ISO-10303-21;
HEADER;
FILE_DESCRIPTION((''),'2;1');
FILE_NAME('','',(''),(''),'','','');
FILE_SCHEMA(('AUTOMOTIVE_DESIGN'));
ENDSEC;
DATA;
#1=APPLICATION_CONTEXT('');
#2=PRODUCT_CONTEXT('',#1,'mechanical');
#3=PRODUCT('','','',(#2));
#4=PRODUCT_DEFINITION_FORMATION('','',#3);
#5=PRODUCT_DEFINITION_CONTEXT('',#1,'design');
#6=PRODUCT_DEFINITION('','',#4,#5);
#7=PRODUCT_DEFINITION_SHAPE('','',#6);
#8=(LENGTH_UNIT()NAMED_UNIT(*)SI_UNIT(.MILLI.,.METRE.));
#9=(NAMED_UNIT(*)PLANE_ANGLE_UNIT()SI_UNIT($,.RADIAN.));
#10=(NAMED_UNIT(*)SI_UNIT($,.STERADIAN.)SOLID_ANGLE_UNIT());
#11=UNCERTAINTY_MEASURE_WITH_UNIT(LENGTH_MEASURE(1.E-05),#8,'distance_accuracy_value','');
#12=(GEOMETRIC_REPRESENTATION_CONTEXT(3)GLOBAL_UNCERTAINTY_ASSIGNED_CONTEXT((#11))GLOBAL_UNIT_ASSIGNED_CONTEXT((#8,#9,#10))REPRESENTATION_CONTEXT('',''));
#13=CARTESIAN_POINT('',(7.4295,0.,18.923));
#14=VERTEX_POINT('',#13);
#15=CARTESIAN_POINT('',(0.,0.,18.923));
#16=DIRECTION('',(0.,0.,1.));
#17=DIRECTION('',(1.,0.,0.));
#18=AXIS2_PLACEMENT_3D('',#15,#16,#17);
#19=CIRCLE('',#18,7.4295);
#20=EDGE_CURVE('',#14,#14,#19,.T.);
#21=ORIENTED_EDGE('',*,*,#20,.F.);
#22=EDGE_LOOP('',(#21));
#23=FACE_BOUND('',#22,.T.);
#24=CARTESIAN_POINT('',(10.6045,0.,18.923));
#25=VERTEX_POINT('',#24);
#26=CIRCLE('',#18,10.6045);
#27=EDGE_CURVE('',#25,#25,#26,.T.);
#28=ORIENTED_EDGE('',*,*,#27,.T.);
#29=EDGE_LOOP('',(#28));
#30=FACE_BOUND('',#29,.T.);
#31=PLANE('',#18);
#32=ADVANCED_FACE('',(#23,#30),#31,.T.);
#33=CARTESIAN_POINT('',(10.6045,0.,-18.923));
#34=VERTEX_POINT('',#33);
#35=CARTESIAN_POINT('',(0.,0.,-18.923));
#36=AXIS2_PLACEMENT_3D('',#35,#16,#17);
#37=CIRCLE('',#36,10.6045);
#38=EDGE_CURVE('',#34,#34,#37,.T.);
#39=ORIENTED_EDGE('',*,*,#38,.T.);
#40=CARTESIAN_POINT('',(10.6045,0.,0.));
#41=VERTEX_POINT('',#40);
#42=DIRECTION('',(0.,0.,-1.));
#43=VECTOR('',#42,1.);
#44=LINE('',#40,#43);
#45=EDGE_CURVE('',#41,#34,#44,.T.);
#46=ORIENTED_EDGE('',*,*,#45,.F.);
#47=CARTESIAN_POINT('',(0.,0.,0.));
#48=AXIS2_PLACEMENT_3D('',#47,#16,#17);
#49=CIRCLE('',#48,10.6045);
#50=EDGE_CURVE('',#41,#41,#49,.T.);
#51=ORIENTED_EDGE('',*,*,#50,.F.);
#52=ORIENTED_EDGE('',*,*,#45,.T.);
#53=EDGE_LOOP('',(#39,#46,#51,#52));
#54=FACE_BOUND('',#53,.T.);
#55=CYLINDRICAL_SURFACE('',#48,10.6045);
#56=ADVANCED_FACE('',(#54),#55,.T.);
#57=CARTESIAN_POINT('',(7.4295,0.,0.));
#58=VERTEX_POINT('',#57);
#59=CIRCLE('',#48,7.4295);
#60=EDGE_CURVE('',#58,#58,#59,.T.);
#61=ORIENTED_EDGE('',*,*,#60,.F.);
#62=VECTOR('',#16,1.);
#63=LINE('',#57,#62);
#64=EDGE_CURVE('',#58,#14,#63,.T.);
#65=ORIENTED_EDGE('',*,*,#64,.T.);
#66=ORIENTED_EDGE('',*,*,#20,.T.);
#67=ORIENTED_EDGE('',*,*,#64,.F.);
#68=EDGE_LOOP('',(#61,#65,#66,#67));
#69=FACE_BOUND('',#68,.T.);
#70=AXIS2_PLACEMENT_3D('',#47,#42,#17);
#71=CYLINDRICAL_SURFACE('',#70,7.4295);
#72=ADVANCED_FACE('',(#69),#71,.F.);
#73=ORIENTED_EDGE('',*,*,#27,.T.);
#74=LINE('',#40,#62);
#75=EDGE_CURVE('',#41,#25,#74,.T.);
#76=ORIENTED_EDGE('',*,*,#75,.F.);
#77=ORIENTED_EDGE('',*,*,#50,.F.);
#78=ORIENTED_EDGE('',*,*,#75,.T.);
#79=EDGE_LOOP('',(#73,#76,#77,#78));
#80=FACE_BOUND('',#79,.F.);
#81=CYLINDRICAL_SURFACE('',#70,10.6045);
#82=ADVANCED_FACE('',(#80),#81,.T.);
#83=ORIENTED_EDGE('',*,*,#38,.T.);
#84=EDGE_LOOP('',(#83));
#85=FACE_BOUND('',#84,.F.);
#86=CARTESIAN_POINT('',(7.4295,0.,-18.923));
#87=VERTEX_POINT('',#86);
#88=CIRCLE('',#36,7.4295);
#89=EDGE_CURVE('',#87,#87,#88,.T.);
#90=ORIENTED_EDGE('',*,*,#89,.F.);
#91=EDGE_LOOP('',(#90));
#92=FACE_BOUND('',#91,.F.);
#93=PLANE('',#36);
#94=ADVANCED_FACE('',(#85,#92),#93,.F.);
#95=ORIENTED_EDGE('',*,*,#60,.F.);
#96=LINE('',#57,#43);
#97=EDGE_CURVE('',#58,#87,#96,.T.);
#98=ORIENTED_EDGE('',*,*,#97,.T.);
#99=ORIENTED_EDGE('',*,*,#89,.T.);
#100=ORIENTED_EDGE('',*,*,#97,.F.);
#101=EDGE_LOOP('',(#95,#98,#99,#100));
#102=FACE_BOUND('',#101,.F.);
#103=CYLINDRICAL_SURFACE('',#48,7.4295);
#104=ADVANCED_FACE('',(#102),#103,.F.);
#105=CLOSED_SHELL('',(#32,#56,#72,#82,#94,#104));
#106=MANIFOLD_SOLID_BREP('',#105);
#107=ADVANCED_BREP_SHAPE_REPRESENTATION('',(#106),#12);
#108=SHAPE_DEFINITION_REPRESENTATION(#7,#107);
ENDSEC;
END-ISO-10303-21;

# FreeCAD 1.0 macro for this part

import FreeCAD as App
import Part
import Sketcher

V = App.Vector
Q = App.Units.Quantity

doc = App.newDocument("Part")
params = doc.addObject("Spreadsheet::Sheet", "Params")
for row, (alias, value) in enumerate([
    ("sketch1_diameter", "0.585 in"),
    ("sketch1_diameter2", "0.835 in"),
    ("pad1_length", "1.49 in"),
], start=1):
    params.set(f"A{row}", alias)
    params.set(f"B{row}", "=" + value)
    params.setAlias(f"B{row}", alias)

body = doc.addObject("PartDesign::Body", "Body")

sketch1 = body.newObject("Sketcher::SketchObject", "Sketch")
sketch1.AttachmentSupport = (doc.getObject("XY_Plane"), [""])
sketch1.MapMode = "FlatFace"
sketch1.addGeometry([
    Part.Circle(V(0, 0, 0), V(0, 0, 1), 11),
    Part.Circle(V(0, 0, 0), V(0, 0, 1), 7),
], False)
sketch1.addConstraint([
    Sketcher.Constraint("Coincident", 0, 3, -1, 1),
    Sketcher.Constraint("Coincident", 1, 3, -1, 1),
    Sketcher.Constraint("Diameter", 1, Q("0.585 in")),
    Sketcher.Constraint("Diameter", 0, Q("0.835 in")),
])
sketch1.setExpression("Constraints[2]", "Params.sketch1_diameter")
sketch1.setExpression("Constraints[3]", "Params.sketch1_diameter2")
pad1 = body.newObject("PartDesign::Pad", "Pad")
pad1.Profile = sketch1
pad1.setExpression("Length", "Params.pad1_length")
pad1.Midplane = True

doc.recompute()
